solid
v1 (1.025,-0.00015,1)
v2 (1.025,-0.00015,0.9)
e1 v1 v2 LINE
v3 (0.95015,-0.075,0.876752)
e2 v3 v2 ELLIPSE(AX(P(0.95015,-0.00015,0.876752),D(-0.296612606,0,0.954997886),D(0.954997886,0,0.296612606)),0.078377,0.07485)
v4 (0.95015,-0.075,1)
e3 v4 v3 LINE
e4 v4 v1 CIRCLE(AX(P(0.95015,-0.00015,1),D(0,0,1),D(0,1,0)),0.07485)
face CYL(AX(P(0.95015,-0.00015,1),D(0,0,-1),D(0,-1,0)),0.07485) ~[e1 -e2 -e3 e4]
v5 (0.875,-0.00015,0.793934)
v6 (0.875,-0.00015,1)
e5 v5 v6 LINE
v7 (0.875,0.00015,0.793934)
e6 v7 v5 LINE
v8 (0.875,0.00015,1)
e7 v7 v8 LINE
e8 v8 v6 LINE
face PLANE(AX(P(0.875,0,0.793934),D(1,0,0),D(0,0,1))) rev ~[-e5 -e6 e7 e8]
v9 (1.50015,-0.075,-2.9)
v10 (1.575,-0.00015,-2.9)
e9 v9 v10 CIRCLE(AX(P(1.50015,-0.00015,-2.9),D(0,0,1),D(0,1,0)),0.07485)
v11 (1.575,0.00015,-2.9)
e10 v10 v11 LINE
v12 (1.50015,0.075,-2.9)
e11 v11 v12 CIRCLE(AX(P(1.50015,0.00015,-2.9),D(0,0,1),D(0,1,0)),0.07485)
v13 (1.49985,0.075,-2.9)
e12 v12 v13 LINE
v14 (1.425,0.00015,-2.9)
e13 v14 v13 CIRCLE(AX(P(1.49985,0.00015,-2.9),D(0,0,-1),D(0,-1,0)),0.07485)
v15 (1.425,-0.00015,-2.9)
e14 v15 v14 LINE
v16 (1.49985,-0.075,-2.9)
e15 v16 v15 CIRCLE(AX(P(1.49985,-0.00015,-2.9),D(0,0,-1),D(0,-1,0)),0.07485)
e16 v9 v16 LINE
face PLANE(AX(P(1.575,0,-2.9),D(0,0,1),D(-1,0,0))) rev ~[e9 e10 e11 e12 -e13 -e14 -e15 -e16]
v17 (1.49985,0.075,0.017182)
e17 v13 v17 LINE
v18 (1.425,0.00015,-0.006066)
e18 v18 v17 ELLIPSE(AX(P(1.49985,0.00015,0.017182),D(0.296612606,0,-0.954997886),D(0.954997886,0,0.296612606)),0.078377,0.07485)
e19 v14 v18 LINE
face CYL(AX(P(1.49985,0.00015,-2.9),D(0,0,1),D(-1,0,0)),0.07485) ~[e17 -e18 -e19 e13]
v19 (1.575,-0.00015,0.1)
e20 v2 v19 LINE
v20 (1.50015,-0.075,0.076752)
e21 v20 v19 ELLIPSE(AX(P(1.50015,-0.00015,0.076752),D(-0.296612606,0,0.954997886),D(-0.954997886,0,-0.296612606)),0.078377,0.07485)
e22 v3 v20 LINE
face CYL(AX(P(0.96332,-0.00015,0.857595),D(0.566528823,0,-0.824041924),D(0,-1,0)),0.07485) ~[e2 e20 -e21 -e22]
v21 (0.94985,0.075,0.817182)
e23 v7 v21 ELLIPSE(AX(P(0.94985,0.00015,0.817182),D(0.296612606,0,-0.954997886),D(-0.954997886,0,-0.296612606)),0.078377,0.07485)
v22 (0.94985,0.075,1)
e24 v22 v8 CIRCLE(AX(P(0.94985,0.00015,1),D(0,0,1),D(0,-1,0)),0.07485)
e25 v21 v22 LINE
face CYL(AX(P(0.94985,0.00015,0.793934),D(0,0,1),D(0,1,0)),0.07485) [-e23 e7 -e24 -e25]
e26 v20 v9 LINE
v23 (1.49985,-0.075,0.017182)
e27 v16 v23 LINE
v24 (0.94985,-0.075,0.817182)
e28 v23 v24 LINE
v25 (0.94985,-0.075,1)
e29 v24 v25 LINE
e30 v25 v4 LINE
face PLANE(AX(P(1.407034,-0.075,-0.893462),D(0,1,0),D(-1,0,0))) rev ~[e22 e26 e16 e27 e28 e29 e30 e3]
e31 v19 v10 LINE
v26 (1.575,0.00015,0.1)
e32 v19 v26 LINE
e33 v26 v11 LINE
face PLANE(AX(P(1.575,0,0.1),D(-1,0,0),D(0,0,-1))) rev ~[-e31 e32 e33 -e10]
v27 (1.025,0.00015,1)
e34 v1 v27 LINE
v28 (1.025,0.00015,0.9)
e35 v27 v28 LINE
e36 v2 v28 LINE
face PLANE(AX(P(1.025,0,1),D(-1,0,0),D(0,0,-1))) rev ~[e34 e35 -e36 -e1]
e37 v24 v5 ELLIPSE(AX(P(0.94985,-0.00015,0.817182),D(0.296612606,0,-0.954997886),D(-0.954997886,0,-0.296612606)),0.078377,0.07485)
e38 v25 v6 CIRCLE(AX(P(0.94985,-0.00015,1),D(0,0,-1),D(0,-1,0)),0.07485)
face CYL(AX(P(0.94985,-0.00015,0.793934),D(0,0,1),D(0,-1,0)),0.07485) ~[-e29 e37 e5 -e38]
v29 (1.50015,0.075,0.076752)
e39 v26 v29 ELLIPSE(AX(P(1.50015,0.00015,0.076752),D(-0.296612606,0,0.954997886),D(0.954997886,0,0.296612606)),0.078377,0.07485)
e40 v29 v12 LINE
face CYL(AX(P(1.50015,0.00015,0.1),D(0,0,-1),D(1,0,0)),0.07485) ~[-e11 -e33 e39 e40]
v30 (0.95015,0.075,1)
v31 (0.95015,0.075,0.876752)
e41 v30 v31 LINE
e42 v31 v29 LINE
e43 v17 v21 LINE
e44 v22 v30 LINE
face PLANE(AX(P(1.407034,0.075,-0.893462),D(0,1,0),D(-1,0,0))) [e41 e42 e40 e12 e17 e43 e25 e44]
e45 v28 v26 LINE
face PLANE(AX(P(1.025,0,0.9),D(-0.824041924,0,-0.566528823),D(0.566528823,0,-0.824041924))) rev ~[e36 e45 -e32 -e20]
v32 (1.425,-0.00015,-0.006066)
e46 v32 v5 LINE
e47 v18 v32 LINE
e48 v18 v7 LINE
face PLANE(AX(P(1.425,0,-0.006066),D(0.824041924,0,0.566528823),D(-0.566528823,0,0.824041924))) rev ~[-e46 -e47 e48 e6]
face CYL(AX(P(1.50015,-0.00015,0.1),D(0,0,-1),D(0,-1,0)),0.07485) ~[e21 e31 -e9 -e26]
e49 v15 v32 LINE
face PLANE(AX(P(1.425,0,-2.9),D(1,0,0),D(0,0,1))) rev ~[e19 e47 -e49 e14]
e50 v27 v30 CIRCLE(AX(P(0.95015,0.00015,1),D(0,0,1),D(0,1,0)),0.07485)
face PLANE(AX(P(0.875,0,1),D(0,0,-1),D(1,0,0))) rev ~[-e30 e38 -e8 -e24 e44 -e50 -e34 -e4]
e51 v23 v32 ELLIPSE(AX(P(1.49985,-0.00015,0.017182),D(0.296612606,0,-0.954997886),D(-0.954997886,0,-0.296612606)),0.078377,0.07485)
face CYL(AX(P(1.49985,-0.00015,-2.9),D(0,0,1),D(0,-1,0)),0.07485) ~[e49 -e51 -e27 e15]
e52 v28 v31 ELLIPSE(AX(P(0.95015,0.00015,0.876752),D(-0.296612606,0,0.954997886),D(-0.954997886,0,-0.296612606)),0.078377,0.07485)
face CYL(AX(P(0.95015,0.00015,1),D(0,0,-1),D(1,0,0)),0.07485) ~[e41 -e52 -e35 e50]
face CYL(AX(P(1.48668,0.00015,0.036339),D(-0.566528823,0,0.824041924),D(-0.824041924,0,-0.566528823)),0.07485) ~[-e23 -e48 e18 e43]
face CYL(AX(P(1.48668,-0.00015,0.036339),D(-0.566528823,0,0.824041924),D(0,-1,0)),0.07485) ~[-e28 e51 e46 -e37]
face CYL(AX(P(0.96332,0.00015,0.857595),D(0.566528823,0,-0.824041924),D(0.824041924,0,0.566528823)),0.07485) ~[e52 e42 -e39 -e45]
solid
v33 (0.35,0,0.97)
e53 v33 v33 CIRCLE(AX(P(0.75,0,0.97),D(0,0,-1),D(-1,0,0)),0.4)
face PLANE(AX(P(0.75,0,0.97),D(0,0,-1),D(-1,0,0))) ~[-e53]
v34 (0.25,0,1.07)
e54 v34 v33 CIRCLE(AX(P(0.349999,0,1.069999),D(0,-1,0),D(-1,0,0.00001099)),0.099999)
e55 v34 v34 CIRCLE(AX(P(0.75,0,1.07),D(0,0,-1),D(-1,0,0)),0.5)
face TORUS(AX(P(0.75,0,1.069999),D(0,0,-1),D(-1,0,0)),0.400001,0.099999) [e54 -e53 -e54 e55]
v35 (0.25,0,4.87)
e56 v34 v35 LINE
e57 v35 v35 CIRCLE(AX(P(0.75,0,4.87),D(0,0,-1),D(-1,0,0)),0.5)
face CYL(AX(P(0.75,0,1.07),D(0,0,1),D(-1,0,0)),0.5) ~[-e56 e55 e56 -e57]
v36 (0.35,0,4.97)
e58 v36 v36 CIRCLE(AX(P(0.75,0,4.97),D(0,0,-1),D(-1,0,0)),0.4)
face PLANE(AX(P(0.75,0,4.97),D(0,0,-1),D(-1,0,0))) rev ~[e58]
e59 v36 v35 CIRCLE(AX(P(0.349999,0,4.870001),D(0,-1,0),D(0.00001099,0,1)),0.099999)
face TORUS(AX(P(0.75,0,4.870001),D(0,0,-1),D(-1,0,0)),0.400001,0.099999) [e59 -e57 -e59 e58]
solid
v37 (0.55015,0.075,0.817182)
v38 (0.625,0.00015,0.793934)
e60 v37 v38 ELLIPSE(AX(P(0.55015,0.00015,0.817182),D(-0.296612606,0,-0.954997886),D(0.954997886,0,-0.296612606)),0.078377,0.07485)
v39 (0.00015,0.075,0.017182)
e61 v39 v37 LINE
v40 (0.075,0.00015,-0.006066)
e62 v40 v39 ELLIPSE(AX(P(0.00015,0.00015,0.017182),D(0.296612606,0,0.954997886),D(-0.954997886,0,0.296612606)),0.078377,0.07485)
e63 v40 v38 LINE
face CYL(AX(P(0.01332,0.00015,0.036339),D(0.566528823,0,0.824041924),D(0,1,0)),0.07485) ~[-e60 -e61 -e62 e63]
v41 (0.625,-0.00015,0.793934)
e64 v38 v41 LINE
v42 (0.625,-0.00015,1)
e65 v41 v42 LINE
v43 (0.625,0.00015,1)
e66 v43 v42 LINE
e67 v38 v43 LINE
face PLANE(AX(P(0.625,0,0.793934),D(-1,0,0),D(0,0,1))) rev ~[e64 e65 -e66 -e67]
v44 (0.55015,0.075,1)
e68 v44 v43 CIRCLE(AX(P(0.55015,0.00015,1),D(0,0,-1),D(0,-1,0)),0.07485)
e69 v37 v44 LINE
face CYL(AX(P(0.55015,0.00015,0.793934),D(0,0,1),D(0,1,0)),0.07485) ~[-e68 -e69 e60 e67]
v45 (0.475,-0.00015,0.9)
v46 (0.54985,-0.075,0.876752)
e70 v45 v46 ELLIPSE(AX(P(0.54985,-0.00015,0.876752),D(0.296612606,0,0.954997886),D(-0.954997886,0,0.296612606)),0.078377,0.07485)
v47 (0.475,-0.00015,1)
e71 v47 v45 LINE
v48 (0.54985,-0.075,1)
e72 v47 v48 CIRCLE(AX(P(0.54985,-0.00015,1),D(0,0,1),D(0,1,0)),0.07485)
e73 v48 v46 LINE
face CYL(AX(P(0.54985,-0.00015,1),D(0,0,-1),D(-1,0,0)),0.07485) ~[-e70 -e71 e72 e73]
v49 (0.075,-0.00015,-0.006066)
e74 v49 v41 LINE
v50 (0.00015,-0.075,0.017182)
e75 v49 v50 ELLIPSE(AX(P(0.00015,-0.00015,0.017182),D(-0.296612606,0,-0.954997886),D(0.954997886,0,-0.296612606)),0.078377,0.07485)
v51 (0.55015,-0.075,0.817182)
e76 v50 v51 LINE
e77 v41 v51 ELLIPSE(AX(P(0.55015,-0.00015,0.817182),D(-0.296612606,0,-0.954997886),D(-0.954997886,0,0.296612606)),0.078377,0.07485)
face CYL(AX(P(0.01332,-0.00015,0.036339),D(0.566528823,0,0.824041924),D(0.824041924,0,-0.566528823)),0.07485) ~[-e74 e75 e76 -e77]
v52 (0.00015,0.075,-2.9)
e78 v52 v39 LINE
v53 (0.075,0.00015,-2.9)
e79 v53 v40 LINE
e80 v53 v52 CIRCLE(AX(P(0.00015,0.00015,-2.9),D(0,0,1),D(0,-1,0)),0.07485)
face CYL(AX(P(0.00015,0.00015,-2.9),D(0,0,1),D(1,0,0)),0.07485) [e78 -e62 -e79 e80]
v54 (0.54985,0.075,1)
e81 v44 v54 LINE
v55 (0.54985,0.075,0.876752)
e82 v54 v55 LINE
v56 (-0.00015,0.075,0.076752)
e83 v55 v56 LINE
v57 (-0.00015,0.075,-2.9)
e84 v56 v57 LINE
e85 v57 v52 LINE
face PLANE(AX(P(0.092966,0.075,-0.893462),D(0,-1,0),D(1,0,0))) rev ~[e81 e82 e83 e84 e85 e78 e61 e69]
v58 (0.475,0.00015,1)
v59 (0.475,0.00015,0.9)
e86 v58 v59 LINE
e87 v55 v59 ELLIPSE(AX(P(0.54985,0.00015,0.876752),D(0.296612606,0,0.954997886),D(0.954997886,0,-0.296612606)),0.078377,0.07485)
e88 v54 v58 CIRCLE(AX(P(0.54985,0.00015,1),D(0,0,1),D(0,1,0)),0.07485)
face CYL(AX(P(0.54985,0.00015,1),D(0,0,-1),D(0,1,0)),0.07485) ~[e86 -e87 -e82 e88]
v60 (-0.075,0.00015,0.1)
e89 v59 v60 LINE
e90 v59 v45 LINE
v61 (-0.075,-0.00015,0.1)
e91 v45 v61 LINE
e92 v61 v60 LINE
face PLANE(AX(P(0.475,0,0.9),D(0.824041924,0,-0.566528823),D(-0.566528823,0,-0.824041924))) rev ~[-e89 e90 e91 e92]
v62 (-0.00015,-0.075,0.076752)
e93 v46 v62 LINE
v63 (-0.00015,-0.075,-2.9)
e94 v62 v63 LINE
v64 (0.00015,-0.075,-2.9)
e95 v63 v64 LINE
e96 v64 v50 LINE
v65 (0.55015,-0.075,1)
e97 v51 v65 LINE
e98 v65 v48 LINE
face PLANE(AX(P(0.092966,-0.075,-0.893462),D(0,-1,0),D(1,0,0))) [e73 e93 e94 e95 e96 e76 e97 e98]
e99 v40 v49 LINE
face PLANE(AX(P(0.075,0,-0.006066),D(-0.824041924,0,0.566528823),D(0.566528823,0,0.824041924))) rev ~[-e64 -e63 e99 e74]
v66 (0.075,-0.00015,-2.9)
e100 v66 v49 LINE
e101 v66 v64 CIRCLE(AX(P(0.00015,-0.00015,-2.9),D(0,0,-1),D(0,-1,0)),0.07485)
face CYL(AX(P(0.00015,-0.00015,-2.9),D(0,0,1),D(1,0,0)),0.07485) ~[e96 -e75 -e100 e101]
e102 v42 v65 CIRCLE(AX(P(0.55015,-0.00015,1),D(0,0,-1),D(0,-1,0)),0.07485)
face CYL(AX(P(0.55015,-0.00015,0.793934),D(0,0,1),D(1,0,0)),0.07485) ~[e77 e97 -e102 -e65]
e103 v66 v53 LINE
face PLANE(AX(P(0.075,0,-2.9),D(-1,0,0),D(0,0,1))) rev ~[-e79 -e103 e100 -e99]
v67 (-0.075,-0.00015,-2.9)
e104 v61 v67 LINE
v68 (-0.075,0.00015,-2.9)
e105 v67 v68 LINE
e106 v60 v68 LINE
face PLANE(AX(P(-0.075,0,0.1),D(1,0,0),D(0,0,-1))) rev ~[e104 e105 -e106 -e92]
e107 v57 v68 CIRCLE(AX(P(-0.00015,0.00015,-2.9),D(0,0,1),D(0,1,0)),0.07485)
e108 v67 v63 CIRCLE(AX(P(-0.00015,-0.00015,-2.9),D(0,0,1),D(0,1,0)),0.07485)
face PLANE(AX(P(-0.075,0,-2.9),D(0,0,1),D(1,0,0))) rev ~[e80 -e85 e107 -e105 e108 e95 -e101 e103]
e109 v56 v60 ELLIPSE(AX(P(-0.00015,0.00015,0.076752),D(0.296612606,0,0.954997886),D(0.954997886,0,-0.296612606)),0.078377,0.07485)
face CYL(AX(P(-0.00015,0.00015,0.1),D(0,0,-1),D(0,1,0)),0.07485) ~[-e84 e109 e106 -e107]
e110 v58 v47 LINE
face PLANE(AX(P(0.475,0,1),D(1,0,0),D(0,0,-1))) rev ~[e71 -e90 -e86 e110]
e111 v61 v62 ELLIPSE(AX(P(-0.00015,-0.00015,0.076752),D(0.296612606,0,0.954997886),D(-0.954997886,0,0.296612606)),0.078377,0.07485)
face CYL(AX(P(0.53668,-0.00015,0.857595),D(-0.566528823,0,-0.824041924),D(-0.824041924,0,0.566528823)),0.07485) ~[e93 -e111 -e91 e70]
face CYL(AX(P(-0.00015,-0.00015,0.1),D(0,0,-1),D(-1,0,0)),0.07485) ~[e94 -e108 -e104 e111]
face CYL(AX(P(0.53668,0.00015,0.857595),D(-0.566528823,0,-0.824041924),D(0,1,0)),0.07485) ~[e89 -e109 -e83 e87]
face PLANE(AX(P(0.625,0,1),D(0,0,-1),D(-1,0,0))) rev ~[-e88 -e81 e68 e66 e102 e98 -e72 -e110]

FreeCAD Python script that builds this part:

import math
import FreeCAD as App
import Part
import Sketcher
Q = App.Units.Quantity


def edges_at(feature, points):
    """Names of the edges that pass closest to the given points."""
    edges = feature.Shape.Edges
    near = lambda p: min(range(len(edges)), key=lambda i: edges[i].distToShape(Part.Vertex(*p))[0])
    return sorted({f"Edge{near(p) + 1}" for p in points})


def add_polygon(sketch, points):
    """Adds a closed chain of lines whose ends are joined by coincident constraints."""
    first, n = sketch.GeometryCount, len(points)
    for a, b in zip(points, points[1:] + points[:1]):
        sketch.addGeometry(Part.LineSegment(App.Vector(*a, 0), App.Vector(*b, 0)), False)
    for i in range(n):
        sketch.addConstraint(Sketcher.Constraint("Coincident", first + i, 2, first + (i + 1) % n, 1))

doc = App.newDocument("Part")
body = doc.addObject("PartDesign::Body", "Body")

sketch1 = doc.addObject("Sketcher::SketchObject", "Sketch")
body.addObject(sketch1)
sketch1.AttachmentSupport = (doc.XZ_Plane, [""])
sketch1.MapMode = "FlatFace"
sketch1.addGeometry([
    Part.LineSegment(App.Vector(0.75, 4.97, 0), App.Vector(0.35, 4.97, 0)),
    Part.ArcOfCircle(Part.Circle(App.Vector(0.349999, 4.870001, 0), App.Vector(0, 0, 1), 0.099999), math.radians(89.99937), math.radians(180.00063)),
    Part.LineSegment(App.Vector(0.25, 4.87, 0), App.Vector(0.25, 1.07, 0)),
    Part.ArcOfCircle(Part.Circle(App.Vector(0.349999, 1.069999, 0), App.Vector(0, 0, 1), 0.099999), math.radians(179.99937), math.radians(270.00063)),
    Part.LineSegment(App.Vector(0.35, 0.97, 0), App.Vector(0.75, 0.97, 0)),
    Part.LineSegment(App.Vector(0.75, 0.97, 0), App.Vector(0.75, 4.97, 0)),
], False)
sketch1.addGeometry(Part.LineSegment(App.Vector(0.75, 4.97, 0), App.Vector(0.75, 0.97, 0)), True)
sketch1.addConstraint([
    Sketcher.Constraint("Coincident", 0, 2, 1, 1),
    Sketcher.Constraint("Coincident", 1, 2, 2, 1),
    Sketcher.Constraint("Coincident", 2, 2, 3, 1),
    Sketcher.Constraint("Coincident", 3, 2, 4, 1),
    Sketcher.Constraint("Coincident", 4, 2, 5, 1),
    Sketcher.Constraint("Coincident", 5, 2, 0, 1),
    Sketcher.Constraint("Horizontal", 0),
    Sketcher.Constraint("Vertical", 2),
    Sketcher.Constraint("Horizontal", 4),
    Sketcher.Constraint("Vertical", 5),
    Sketcher.Constraint("Vertical", 6),
    Sketcher.Constraint("Coincident", 6, 1, 5, 2),
    Sketcher.Constraint("Equal", 1, 3),
    Sketcher.Constraint("Horizontal", 3, 3, 2, 2),
    Sketcher.Constraint("Horizontal", 3, 2, 6, 2),
    Sketcher.Constraint("Vertical", 3, 3, 0, 2),
    Sketcher.Constraint("Vertical", 0, 2, 3, 2),
    Sketcher.Constraint("Radius", 1, Q("0.099999 mm")),
    Sketcher.Constraint("DistanceY", 5, 1, 5, 2, Q("4 mm")),
    Sketcher.Constraint("DistanceX", 0, 2, 0, 1, Q("0.4 mm")),
    Sketcher.Constraint("DistanceY", 2, 2, 2, 1, Q("3.8 mm")),
    Sketcher.Constraint("DistanceX", -1, 1, 1, 3, Q("0.349999 mm")),
    Sketcher.Constraint("DistanceY", -1, 1, 1, 3, Q("4.870001 mm")),
])
revolution = doc.addObject("PartDesign::Revolution", "Revolution")
body.addObject(revolution)
revolution.Profile = sketch1
revolution.ReferenceAxis = (sketch1, ["Axis0"])
revolution.Angle = 360
body2 = doc.addObject("PartDesign::Body", "Body001")
body2.AllowCompound = True

sketch2 = doc.addObject("Sketcher::SketchObject", "Sketch001")
body2.addObject(sketch2)
sketch2.AttachmentSupport = (doc.getObject("XZ_Plane001"), [""])
sketch2.MapMode = "FlatFace"
add_polygon(sketch2, [(0.075, -2.9), (0.075, -0.006066), (0.625, 0.793934), (0.625, 1), (0.475, 1), (0.475, 0.9), (-0.075, 0.1), (-0.075, -2.9)])
add_polygon(sketch2, [(1.025, 1), (0.875, 1), (0.875, 0.793934), (1.425, -0.006066), (1.425, -2.9), (1.575, -2.9), (1.575, 0.1), (1.025, 0.9)])
sketch2.addConstraint([
    Sketcher.Constraint("Vertical", 0),
    Sketcher.Constraint("Vertical", 2),
    Sketcher.Constraint("Horizontal", 3),
    Sketcher.Constraint("Vertical", 4),
    Sketcher.Constraint("Vertical", 6),
    Sketcher.Constraint("Horizontal", 7),
    Sketcher.Constraint("Horizontal", 8),
    Sketcher.Constraint("Vertical", 9),
    Sketcher.Constraint("Vertical", 11),
    Sketcher.Constraint("Horizontal", 12),
    Sketcher.Constraint("Vertical", 13),
    Sketcher.Constraint("Vertical", 15),
    Sketcher.Constraint("Parallel", 1, 5),
    Sketcher.Constraint("Parallel", 10, 14),
    Sketcher.Constraint("Horizontal", 3, 2, 8, 2),
    Sketcher.Constraint("Horizontal", 1, 2, 9, 2),
    Sketcher.Constraint("Horizontal", 0, 2, 10, 2),
    Sketcher.Constraint("Horizontal", 7, 2, 11, 2),
    Sketcher.Constraint("Horizontal", 5, 2, 13, 2),
    Sketcher.Constraint("Horizontal", 4, 2, 14, 2),
    Sketcher.Constraint("Equal", 3, 7),
    Sketcher.Constraint("Equal", 7, 8),
    Sketcher.Constraint("Equal", 5, 10),
    Sketcher.Constraint("DistanceY", 6, 2, 6, 1, Q("3 mm")),
    Sketcher.Constraint("DistanceY", 4, 2, 4, 1, Q("0.1 mm")),
    Sketcher.Constraint("DistanceY", -1, 1, 2, 2, Q("1 mm")),
    Sketcher.Constraint("DistanceX", 3, 2, 3, 1, Q("0.15 mm")),
    Sketcher.Constraint("DistanceY", -1, 1, 5, 2, Q("0.1 mm")),
    Sketcher.Constraint("DistanceX", 0, 2, 3, 2, Q("0.4 mm")),
    Sketcher.Constraint("DistanceX", 3, 2, 8, 2, Q("0.4 mm")),
    Sketcher.Constraint("DistanceX", -1, 1, 0, 2, Q("0.075 mm")),
    Sketcher.Constraint("DistanceY", 0, 1, 0, 2, Q("2.893934 mm")),
])
pad1 = doc.addObject("PartDesign::Pad", "Pad")
body2.addObject(pad1)
pad1.Profile = sketch2
pad1.Length = 0.15
pad1.Midplane = True
doc.recompute()

fillet = doc.addObject("PartDesign::Fillet", "Fillet")
body2.addObject(fillet)
fillet.Base = (pad1, edges_at(pad1, [
    (0.2, -0.075, 0.5),
    (0.475, -0.075, 0.95),
    (0.625, -0.075, 0.897),
    (0.35, -0.075, 0.394),
    (0.075, -0.075, -1.453),
    (-0.075, -0.075, -1.4),
    (0.075, 0.075, -1.453),
    (0.35, 0.075, 0.394),
    (0.625, 0.075, 0.897),
    (1.15, -0.075, 0.394),
    (0.875, -0.075, 0.897),
    (1.425, -0.075, -1.453),
    (1.575, -0.075, -1.4),
    (1.3, -0.075, 0.5),
    (1.025, -0.075, 0.95),
    (1.025, 0.075, 0.95),
    (1.3, 0.075, 0.5),
    (1.575, 0.075, -1.4),
    (1.425, 0.075, -1.453),
    (1.15, 0.075, 0.394),
    (0.875, 0.075, 0.897),
    (0.475, 0.075, 0.95),
    (-0.075, 0.075, -1.4),
    (0.2, 0.075, 0.5),
]))
fillet.Radius = 0.07485

doc.recompute()
